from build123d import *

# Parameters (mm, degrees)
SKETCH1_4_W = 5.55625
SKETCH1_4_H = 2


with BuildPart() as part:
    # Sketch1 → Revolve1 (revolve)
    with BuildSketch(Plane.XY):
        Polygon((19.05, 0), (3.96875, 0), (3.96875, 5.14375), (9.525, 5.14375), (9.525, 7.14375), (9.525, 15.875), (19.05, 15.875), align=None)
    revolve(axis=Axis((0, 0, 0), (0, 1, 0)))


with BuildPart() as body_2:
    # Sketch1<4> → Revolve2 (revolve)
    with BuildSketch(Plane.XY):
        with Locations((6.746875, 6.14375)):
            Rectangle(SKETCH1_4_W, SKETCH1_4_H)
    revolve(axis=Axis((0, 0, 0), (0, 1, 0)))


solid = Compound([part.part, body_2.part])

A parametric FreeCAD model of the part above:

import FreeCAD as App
import Part
import Sketcher
Q = App.Units.Quantity


def add_polygon(sketch, points):
    """Adds a closed chain of lines whose ends are joined by coincident constraints."""
    first, n = sketch.GeometryCount, len(points)
    for a, b in zip(points, points[1:] + points[:1]):
        sketch.addGeometry(Part.LineSegment(App.Vector(*a, 0), App.Vector(*b, 0)), False)
    for i in range(n):
        sketch.addConstraint(Sketcher.Constraint("Coincident", first + i, 2, first + (i + 1) % n, 1))

doc = App.newDocument("Part")
body = doc.addObject("PartDesign::Body", "Body")

sketch1 = doc.addObject("Sketcher::SketchObject", "Sketch")
body.addObject(sketch1)
sketch1.AttachmentSupport = (doc.XY_Plane, [""])
sketch1.MapMode = "FlatFace"
add_polygon(sketch1, [(4, 0), (19, 0), (19, 16), (10, 16), (10, 5), (4, 5)])
sketch1.addConstraint(Sketcher.Constraint("Horizontal", 0))
sketch1.addConstraint(Sketcher.Constraint("Vertical", 1))
sketch1.addConstraint(Sketcher.Constraint("Horizontal", 2))
sketch1.addConstraint(Sketcher.Constraint("Vertical", 3))
sketch1.addConstraint(Sketcher.Constraint("Horizontal", 4))
sketch1.addConstraint(Sketcher.Constraint("Vertical", 5))
sketch1.addConstraint(Sketcher.Constraint("PointOnObject", 0, 2, -1))
sketch1.addConstraint(Sketcher.Constraint("DistanceX", 0, 1, 0, 2, Q("0.59375 in")))
sketch1.addConstraint(Sketcher.Constraint("DistanceX", 2, 2, 2, 1, Q("0.375 in")))
sketch1.addConstraint(Sketcher.Constraint("DistanceY", 1, 1, 1, 2, Q("0.625 in")))
sketch1.addConstraint(Sketcher.Constraint("DistanceX", -1, 1, 0, 2, Q("0.75 in")))
sketch1.addConstraint(Sketcher.Constraint("DistanceY", 3, 2, 3, 1, 10.73125))
revolution = doc.addObject("PartDesign::Revolution", "Revolution")
body.addObject(revolution)
revolution.Profile = sketch1
revolution.ReferenceAxis = (sketch1, ["V_Axis"])
revolution.Angle = 360
body2 = doc.addObject("PartDesign::Body", "Body001")

sketch2 = doc.addObject("Sketcher::SketchObject", "Sketch001")
body2.addObject(sketch2)
sketch2.AttachmentSupport = (doc.getObject("XY_Plane001"), [""])
sketch2.MapMode = "FlatFace"
add_polygon(sketch2, [(4, 7.1), (4, 5.1), (9.5, 5.1), (9.5, 7.1)])
sketch2.addConstraint(Sketcher.Constraint("Vertical", 0))
sketch2.addConstraint(Sketcher.Constraint("Horizontal", 1))
sketch2.addConstraint(Sketcher.Constraint("Vertical", 2))
sketch2.addConstraint(Sketcher.Constraint("Horizontal", 3))
sketch2.addConstraint(Sketcher.Constraint("DistanceX", 1, 1, 1, 2, Q("0.21875 in")))
sketch2.addConstraint(Sketcher.Constraint("DistanceX", -1, 1, 0, 2, Q("0.15625 in")))
sketch2.addConstraint(Sketcher.Constraint("DistanceY", -1, 1, 2, 2, Q("0.28125 in")))
sketch2.addConstraint(Sketcher.Constraint("DistanceY", 0, 2, 0, 1, 2.0))
revolution2 = doc.addObject("PartDesign::Revolution", "Revolution001")
body2.addObject(revolution2)
revolution2.Profile = sketch2
revolution2.ReferenceAxis = (sketch2, ["V_Axis"])
revolution2.Angle = 360

doc.recompute()
